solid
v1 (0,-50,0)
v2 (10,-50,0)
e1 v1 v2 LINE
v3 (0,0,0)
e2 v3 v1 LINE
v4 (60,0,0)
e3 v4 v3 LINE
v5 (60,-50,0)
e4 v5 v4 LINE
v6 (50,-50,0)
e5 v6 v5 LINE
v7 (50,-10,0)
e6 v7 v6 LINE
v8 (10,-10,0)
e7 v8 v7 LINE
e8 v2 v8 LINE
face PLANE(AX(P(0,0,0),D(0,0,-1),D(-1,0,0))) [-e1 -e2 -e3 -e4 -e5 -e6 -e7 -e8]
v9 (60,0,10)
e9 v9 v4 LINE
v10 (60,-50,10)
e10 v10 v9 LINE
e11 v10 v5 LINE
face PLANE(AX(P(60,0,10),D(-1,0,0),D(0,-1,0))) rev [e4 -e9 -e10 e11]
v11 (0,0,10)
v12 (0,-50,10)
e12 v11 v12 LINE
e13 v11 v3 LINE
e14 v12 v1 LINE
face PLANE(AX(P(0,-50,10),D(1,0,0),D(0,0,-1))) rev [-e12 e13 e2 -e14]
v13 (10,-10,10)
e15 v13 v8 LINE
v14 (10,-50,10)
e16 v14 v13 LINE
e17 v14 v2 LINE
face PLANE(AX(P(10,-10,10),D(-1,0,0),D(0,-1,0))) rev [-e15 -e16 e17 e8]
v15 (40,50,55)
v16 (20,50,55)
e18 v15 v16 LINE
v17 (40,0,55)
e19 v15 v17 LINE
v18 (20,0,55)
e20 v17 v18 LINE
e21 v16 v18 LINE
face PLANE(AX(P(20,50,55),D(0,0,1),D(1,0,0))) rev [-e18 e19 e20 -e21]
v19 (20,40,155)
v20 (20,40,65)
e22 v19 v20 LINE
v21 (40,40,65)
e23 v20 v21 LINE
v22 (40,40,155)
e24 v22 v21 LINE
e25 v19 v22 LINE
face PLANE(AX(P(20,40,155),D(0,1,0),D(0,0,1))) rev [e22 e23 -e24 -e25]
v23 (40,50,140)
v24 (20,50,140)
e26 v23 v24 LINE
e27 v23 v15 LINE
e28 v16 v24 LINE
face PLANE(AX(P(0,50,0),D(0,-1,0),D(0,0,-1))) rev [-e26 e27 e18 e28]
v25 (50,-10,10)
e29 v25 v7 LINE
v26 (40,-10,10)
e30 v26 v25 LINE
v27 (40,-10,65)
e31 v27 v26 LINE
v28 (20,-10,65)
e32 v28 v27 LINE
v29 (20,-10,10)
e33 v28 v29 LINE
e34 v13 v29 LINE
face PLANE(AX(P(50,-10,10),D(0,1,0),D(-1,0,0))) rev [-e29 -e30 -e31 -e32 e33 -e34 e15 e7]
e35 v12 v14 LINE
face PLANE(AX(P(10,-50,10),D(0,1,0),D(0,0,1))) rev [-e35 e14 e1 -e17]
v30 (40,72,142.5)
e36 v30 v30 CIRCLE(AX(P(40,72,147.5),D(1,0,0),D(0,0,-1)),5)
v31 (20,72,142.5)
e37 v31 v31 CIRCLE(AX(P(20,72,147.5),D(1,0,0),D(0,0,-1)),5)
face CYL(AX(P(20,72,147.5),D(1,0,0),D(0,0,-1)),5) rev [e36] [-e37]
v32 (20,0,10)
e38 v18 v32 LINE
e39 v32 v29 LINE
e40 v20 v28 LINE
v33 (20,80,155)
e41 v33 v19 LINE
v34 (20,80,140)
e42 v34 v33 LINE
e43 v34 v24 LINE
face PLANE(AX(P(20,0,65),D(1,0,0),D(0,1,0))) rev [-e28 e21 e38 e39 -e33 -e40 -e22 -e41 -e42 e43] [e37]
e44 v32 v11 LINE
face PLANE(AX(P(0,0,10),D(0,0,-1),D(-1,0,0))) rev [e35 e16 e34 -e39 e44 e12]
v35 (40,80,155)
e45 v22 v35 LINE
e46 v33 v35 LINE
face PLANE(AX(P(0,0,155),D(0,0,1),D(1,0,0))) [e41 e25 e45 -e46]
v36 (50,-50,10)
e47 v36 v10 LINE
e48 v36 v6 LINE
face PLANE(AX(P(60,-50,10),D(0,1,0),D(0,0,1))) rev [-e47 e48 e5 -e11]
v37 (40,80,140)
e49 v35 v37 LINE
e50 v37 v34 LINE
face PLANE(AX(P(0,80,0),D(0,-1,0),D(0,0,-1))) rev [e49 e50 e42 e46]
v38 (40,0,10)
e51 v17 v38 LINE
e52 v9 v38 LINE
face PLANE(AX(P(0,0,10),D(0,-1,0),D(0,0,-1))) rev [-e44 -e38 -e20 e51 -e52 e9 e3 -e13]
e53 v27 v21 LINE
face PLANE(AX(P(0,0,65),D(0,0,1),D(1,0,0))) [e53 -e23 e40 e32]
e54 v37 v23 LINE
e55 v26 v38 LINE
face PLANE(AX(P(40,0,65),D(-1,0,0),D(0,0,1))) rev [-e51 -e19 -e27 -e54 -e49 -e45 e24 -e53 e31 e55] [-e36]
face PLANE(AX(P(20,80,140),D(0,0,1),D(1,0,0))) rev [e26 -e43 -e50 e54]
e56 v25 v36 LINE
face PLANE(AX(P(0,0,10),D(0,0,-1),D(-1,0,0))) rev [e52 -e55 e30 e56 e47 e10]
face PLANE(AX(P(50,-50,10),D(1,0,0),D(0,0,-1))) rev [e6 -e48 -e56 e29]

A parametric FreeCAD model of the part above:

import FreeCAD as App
import Part
import Sketcher
from FreeCAD import Vector

doc = App.newDocument("Part")
body = doc.addObject("PartDesign::Body", "Body")

sketch1 = body.newObject("Sketcher::SketchObject", "Sketch")
sketch1.AttachmentSupport = (doc.getObject("XY_Plane"), [""])
sketch1.MapMode = "FlatFace"
sketch1.addGeometry([
    Part.LineSegment(Vector(60, 0, 0), Vector(0, 0, 0)),
    Part.LineSegment(Vector(0, 0, 0), Vector(0, -50, 0)),
    Part.LineSegment(Vector(0, -50, 0), Vector(10, -50, 0)),
    Part.LineSegment(Vector(10, -50, 0), Vector(10, -10, 0)),
    Part.LineSegment(Vector(10, -10, 0), Vector(50, -10, 0)),
    Part.LineSegment(Vector(50, -10, 0), Vector(50, -50, 0)),
    Part.LineSegment(Vector(50, -50, 0), Vector(60, -50, 0)),
    Part.LineSegment(Vector(60, -50, 0), Vector(60, 0, 0)),
], False)
sketch1.addConstraint([
    Sketcher.Constraint("Coincident", 0, 2, 1, 1),
    Sketcher.Constraint("Coincident", 1, 2, 2, 1),
    Sketcher.Constraint("Coincident", 2, 2, 3, 1),
    Sketcher.Constraint("Coincident", 3, 2, 4, 1),
    Sketcher.Constraint("Coincident", 4, 2, 5, 1),
    Sketcher.Constraint("Coincident", 5, 2, 6, 1),
    Sketcher.Constraint("Coincident", 6, 2, 7, 1),
    Sketcher.Constraint("Coincident", 7, 2, 0, 1),
    Sketcher.Constraint("Horizontal", 0),
    Sketcher.Constraint("Vertical", 1),
    Sketcher.Constraint("Horizontal", 2),
    Sketcher.Constraint("Vertical", 3),
    Sketcher.Constraint("Horizontal", 4),
    Sketcher.Constraint("Vertical", 5),
    Sketcher.Constraint("Horizontal", 6),
    Sketcher.Constraint("Vertical", 7),
    Sketcher.Constraint("Coincident", 0, 2, -1, 1),
    Sketcher.Constraint("Horizontal", 2, 2, 5, 2),
    Sketcher.Constraint("Equal", 2, 6),
    Sketcher.Constraint("Equal", 4, 3),
    Sketcher.Constraint("DistanceX", 0, 2, 0, 1, 60.0),
    Sketcher.Constraint("DistanceX", 2, 1, 2, 2, 10.0),
    Sketcher.Constraint("DistanceY", 1, 2, 1, 1, 50.0),
])
pad1 = body.newObject("PartDesign::Pad", "Pad")
pad1.Profile = sketch1
pad1.Length = 10

sketch2 = body.newObject("Sketcher::SketchObject", "Sketch001")
sketch2.AttachmentSupport = (doc.getObject("XY_Plane"), [""])
sketch2.MapMode = "FlatFace"
sketch2.AttachmentOffset = App.Placement(Vector(0, 0, 10), App.Rotation())
sketch2.addGeometry([
    Part.LineSegment(Vector(20, 0, 0), Vector(20, -10, 0)),
    Part.LineSegment(Vector(20, -10, 0), Vector(40, -10, 0)),
    Part.LineSegment(Vector(40, -10, 0), Vector(40, 0, 0)),
    Part.LineSegment(Vector(40, 0, 0), Vector(20, 0, 0)),
], False)
sketch2.addConstraint([
    Sketcher.Constraint("Coincident", 0, 2, 1, 1),
    Sketcher.Constraint("Coincident", 1, 2, 2, 1),
    Sketcher.Constraint("Coincident", 2, 2, 3, 1),
    Sketcher.Constraint("Coincident", 3, 2, 0, 1),
    Sketcher.Constraint("Vertical", 0),
    Sketcher.Constraint("Horizontal", 1),
    Sketcher.Constraint("Vertical", 2),
    Sketcher.Constraint("Horizontal", 3),
    Sketcher.Constraint("PointOnObject", 2, 2, -1),
    Sketcher.Constraint("DistanceX", 1, 1, 1, 2, 20.0),
    Sketcher.Constraint("DistanceY", 0, 2, 0, 1, 10.0),
    Sketcher.Constraint("DistanceX", -1, 1, 0, 2, 20.0),
])
pad2 = body.newObject("PartDesign::Pad", "Pad001")
pad2.Profile = sketch2
pad2.Length = 55

sketch3 = body.newObject("Sketcher::SketchObject", "Sketch002")
sketch3.AttachmentSupport = (doc.getObject("XZ_Plane"), [""])
sketch3.MapMode = "FlatFace"
sketch3.addGeometry([
    Part.LineSegment(Vector(20, 55, 0), Vector(20, 65, 0)),
    Part.LineSegment(Vector(20, 65, 0), Vector(40, 65, 0)),
    Part.LineSegment(Vector(40, 65, 0), Vector(40, 55, 0)),
    Part.LineSegment(Vector(40, 55, 0), Vector(20, 55, 0)),
], False)
sketch3.addConstraint([
    Sketcher.Constraint("Coincident", 0, 2, 1, 1),
    Sketcher.Constraint("Coincident", 1, 2, 2, 1),
    Sketcher.Constraint("Coincident", 2, 2, 3, 1),
    Sketcher.Constraint("Coincident", 3, 2, 0, 1),
    Sketcher.Constraint("Vertical", 0),
    Sketcher.Constraint("Horizontal", 1),
    Sketcher.Constraint("Vertical", 2),
    Sketcher.Constraint("Horizontal", 3),
    Sketcher.Constraint("DistanceX", 1, 1, 1, 2, 20.0),
    Sketcher.Constraint("DistanceY", 0, 1, 0, 2, 10.0),
    Sketcher.Constraint("DistanceX", -1, 1, 0, 2, 20.0),
    Sketcher.Constraint("DistanceY", -1, 1, 0, 2, 65.0),
])
pad3 = body.newObject("PartDesign::Pad", "Pad002")
pad3.Profile = sketch3
pad3.Length = 50
pad3.Reversed = True

sketch4 = body.newObject("Sketcher::SketchObject", "Sketch003")
sketch4.AttachmentSupport = (doc.getObject("XY_Plane"), [""])
sketch4.MapMode = "FlatFace"
sketch4.AttachmentOffset = App.Placement(Vector(0, 0, 65), App.Rotation())
sketch4.addGeometry([
    Part.LineSegment(Vector(20, 50, 0), Vector(20, 40, 0)),
    Part.LineSegment(Vector(20, 40, 0), Vector(40, 40, 0)),
    Part.LineSegment(Vector(40, 40, 0), Vector(40, 50, 0)),
    Part.LineSegment(Vector(40, 50, 0), Vector(20, 50, 0)),
], False)
sketch4.addConstraint([
    Sketcher.Constraint("Coincident", 0, 2, 1, 1),
    Sketcher.Constraint("Coincident", 1, 2, 2, 1),
    Sketcher.Constraint("Coincident", 2, 2, 3, 1),
    Sketcher.Constraint("Coincident", 3, 2, 0, 1),
    Sketcher.Constraint("Vertical", 0),
    Sketcher.Constraint("Horizontal", 1),
    Sketcher.Constraint("Vertical", 2),
    Sketcher.Constraint("Horizontal", 3),
    Sketcher.Constraint("DistanceX", 1, 1, 1, 2, 20.0),
    Sketcher.Constraint("DistanceY", 0, 2, 0, 1, 10.0),
    Sketcher.Constraint("DistanceX", -1, 1, 0, 2, 20.0),
    Sketcher.Constraint("DistanceY", -1, 1, 0, 2, 40.0),
])
pad4 = body.newObject("PartDesign::Pad", "Pad003")
pad4.Profile = sketch4
pad4.Length = 90

sketch5 = body.newObject("Sketcher::SketchObject", "Sketch004")
sketch5.AttachmentSupport = (doc.getObject("XZ_Plane"), [""])
sketch5.MapMode = "FlatFace"
sketch5.AttachmentOffset = App.Placement(Vector(0, 0, -50), App.Rotation())
sketch5.addGeometry([
    Part.LineSegment(Vector(20, 140, 0), Vector(20, 155, 0)),
    Part.LineSegment(Vector(20, 155, 0), Vector(40, 155, 0)),
    Part.LineSegment(Vector(40, 155, 0), Vector(40, 140, 0)),
    Part.LineSegment(Vector(40, 140, 0), Vector(20, 140, 0)),
], False)
sketch5.addConstraint([
    Sketcher.Constraint("Coincident", 0, 2, 1, 1),
    Sketcher.Constraint("Coincident", 1, 2, 2, 1),
    Sketcher.Constraint("Coincident", 2, 2, 3, 1),
    Sketcher.Constraint("Coincident", 3, 2, 0, 1),
    Sketcher.Constraint("Vertical", 0),
    Sketcher.Constraint("Horizontal", 1),
    Sketcher.Constraint("Vertical", 2),
    Sketcher.Constraint("Horizontal", 3),
    Sketcher.Constraint("DistanceX", 1, 1, 1, 2, 20.0),
    Sketcher.Constraint("DistanceY", 0, 1, 0, 2, 15.0),
    Sketcher.Constraint("DistanceX", -1, 1, 0, 2, 20.0),
    Sketcher.Constraint("DistanceY", -1, 1, 0, 2, 155.0),
])
pad5 = body.newObject("PartDesign::Pad", "Pad004")
pad5.Profile = sketch5
pad5.Length = 30
pad5.Reversed = True

sketch6 = body.newObject("Sketcher::SketchObject", "Sketch005")
sketch6.AttachmentSupport = (doc.getObject("YZ_Plane"), [""])
sketch6.MapMode = "FlatFace"
sketch6.AttachmentOffset = App.Placement(Vector(0, 0, 40), App.Rotation())
sketch6.addGeometry(Part.Circle(Vector(72, 147.5, 0), Vector(0, 0, 1), 5), False)
sketch6.addConstraint([
    Sketcher.Constraint("Diameter", 0, 10.0),
    Sketcher.Constraint("DistanceX", -1, 1, 0, 3, 72.0),
    Sketcher.Constraint("DistanceY", -1, 1, 0, 3, 147.5),
])
pocket1 = body.newObject("PartDesign::Pocket", "Pocket")
pocket1.Profile = sketch6
pocket1.Length = 20

doc.recompute()
